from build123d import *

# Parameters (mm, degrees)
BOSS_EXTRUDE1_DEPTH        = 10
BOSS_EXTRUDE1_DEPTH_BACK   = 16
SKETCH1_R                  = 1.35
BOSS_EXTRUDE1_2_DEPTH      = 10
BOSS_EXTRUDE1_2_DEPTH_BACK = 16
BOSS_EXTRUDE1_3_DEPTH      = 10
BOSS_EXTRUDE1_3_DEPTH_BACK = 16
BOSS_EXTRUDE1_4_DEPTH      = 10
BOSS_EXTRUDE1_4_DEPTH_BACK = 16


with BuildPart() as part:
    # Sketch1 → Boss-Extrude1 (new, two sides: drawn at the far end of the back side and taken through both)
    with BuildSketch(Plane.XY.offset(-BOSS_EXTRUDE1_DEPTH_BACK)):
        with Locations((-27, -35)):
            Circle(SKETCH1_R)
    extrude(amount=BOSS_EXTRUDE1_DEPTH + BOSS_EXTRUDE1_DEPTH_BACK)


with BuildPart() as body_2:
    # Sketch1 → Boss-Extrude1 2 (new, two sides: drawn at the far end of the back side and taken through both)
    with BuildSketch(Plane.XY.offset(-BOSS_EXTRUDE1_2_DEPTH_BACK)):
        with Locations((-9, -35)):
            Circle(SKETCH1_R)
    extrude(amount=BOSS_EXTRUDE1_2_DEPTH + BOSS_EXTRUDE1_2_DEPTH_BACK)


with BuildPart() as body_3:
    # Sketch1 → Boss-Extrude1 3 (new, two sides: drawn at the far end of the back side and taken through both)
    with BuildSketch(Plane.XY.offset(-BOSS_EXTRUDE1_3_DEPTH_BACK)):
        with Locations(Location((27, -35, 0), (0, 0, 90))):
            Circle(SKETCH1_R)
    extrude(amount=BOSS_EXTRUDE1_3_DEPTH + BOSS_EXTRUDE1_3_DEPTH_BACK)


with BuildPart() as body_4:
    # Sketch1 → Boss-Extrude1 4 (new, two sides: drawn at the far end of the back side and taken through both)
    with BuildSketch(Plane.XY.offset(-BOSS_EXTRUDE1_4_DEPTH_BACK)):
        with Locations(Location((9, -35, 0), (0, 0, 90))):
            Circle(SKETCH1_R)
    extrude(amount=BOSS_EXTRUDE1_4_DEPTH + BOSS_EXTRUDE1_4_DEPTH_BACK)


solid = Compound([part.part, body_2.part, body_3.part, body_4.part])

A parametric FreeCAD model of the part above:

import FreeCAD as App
import Part
import Sketcher
from FreeCAD import Vector
Q = App.Units.Quantity

doc = App.newDocument("Part")
body = doc.addObject("PartDesign::Body", "Body")

# Sketch on XY plane
sketch1 = body.newObject("Sketcher::SketchObject", "Sketch")
sketch1.AttachmentSupport = (doc.getObject("XY_Plane"), [""])
sketch1.MapMode = "FlatFace"
sketch1.addGeometry(Part.Circle(Vector(-27, -35, 0), Vector(0, 0, 1), 1.4), False)
sketch1.addConstraint(Sketcher.Constraint("Diameter", 0, Q("2.7 mm")))
sketch1.addConstraint(Sketcher.Constraint("DistanceX", 0, 3, -1, 1, Q("27 mm")))
sketch1.addConstraint(Sketcher.Constraint("DistanceY", 0, 3, -1, 1, Q("35 mm")))
pad1 = body.newObject("PartDesign::Pad", "Pad")
pad1.Profile = sketch1
pad1.Type = "TwoLengths"
pad1.Length = 10
pad1.Length2 = 16
body2 = doc.addObject("PartDesign::Body", "Body001")

# Sketch on XY plane
sketch2 = body2.newObject("Sketcher::SketchObject", "Sketch001")
sketch2.AttachmentSupport = (doc.getObject("XY_Plane001"), [""])
sketch2.MapMode = "FlatFace"
sketch2.addGeometry(Part.Circle(Vector(-9, -35, 0), Vector(0, 0, 1), 1.4), False)
sketch2.addConstraint(Sketcher.Constraint("Diameter", 0, Q("2.7 mm")))
sketch2.addConstraint(Sketcher.Constraint("DistanceX", 0, 3, -1, 1, Q("9 mm")))
sketch2.addConstraint(Sketcher.Constraint("DistanceY", 0, 3, -1, 1, Q("35 mm")))
pad2 = body2.newObject("PartDesign::Pad", "Pad001")
pad2.Profile = sketch2
pad2.Type = "TwoLengths"
pad2.Length = 10
pad2.Length2 = 16
body3 = doc.addObject("PartDesign::Body", "Body002")

# Sketch on XY plane
sketch3 = body3.newObject("Sketcher::SketchObject", "Sketch002")
sketch3.AttachmentSupport = (doc.getObject("XY_Plane002"), [""])
sketch3.MapMode = "FlatFace"
sketch3.addGeometry(Part.Circle(Vector(27, -35, 0), Vector(0, 0, 1), 1.4), False)
sketch3.addConstraint(Sketcher.Constraint("Diameter", 0, Q("2.7 mm")))
sketch3.addConstraint(Sketcher.Constraint("DistanceX", -1, 1, 0, 3, Q("27 mm")))
sketch3.addConstraint(Sketcher.Constraint("DistanceY", 0, 3, -1, 1, Q("35 mm")))
pad3 = body3.newObject("PartDesign::Pad", "Pad002")
pad3.Profile = sketch3
pad3.Type = "TwoLengths"
pad3.Length = 10
pad3.Length2 = 16
body4 = doc.addObject("PartDesign::Body", "Body003")

# Sketch on XY plane
sketch4 = body4.newObject("Sketcher::SketchObject", "Sketch003")
sketch4.AttachmentSupport = (doc.getObject("XY_Plane003"), [""])
sketch4.MapMode = "FlatFace"
sketch4.addGeometry(Part.Circle(Vector(9, -35, 0), Vector(0, 0, 1), 1.4), False)
sketch4.addConstraint(Sketcher.Constraint("Diameter", 0, Q("2.7 mm")))
sketch4.addConstraint(Sketcher.Constraint("DistanceX", -1, 1, 0, 3, Q("9 mm")))
sketch4.addConstraint(Sketcher.Constraint("DistanceY", 0, 3, -1, 1, Q("35 mm")))
pad4 = body4.newObject("PartDesign::Pad", "Pad003")
pad4.Profile = sketch4
pad4.Type = "TwoLengths"
pad4.Length = 10
pad4.Length2 = 16

doc.recompute()
